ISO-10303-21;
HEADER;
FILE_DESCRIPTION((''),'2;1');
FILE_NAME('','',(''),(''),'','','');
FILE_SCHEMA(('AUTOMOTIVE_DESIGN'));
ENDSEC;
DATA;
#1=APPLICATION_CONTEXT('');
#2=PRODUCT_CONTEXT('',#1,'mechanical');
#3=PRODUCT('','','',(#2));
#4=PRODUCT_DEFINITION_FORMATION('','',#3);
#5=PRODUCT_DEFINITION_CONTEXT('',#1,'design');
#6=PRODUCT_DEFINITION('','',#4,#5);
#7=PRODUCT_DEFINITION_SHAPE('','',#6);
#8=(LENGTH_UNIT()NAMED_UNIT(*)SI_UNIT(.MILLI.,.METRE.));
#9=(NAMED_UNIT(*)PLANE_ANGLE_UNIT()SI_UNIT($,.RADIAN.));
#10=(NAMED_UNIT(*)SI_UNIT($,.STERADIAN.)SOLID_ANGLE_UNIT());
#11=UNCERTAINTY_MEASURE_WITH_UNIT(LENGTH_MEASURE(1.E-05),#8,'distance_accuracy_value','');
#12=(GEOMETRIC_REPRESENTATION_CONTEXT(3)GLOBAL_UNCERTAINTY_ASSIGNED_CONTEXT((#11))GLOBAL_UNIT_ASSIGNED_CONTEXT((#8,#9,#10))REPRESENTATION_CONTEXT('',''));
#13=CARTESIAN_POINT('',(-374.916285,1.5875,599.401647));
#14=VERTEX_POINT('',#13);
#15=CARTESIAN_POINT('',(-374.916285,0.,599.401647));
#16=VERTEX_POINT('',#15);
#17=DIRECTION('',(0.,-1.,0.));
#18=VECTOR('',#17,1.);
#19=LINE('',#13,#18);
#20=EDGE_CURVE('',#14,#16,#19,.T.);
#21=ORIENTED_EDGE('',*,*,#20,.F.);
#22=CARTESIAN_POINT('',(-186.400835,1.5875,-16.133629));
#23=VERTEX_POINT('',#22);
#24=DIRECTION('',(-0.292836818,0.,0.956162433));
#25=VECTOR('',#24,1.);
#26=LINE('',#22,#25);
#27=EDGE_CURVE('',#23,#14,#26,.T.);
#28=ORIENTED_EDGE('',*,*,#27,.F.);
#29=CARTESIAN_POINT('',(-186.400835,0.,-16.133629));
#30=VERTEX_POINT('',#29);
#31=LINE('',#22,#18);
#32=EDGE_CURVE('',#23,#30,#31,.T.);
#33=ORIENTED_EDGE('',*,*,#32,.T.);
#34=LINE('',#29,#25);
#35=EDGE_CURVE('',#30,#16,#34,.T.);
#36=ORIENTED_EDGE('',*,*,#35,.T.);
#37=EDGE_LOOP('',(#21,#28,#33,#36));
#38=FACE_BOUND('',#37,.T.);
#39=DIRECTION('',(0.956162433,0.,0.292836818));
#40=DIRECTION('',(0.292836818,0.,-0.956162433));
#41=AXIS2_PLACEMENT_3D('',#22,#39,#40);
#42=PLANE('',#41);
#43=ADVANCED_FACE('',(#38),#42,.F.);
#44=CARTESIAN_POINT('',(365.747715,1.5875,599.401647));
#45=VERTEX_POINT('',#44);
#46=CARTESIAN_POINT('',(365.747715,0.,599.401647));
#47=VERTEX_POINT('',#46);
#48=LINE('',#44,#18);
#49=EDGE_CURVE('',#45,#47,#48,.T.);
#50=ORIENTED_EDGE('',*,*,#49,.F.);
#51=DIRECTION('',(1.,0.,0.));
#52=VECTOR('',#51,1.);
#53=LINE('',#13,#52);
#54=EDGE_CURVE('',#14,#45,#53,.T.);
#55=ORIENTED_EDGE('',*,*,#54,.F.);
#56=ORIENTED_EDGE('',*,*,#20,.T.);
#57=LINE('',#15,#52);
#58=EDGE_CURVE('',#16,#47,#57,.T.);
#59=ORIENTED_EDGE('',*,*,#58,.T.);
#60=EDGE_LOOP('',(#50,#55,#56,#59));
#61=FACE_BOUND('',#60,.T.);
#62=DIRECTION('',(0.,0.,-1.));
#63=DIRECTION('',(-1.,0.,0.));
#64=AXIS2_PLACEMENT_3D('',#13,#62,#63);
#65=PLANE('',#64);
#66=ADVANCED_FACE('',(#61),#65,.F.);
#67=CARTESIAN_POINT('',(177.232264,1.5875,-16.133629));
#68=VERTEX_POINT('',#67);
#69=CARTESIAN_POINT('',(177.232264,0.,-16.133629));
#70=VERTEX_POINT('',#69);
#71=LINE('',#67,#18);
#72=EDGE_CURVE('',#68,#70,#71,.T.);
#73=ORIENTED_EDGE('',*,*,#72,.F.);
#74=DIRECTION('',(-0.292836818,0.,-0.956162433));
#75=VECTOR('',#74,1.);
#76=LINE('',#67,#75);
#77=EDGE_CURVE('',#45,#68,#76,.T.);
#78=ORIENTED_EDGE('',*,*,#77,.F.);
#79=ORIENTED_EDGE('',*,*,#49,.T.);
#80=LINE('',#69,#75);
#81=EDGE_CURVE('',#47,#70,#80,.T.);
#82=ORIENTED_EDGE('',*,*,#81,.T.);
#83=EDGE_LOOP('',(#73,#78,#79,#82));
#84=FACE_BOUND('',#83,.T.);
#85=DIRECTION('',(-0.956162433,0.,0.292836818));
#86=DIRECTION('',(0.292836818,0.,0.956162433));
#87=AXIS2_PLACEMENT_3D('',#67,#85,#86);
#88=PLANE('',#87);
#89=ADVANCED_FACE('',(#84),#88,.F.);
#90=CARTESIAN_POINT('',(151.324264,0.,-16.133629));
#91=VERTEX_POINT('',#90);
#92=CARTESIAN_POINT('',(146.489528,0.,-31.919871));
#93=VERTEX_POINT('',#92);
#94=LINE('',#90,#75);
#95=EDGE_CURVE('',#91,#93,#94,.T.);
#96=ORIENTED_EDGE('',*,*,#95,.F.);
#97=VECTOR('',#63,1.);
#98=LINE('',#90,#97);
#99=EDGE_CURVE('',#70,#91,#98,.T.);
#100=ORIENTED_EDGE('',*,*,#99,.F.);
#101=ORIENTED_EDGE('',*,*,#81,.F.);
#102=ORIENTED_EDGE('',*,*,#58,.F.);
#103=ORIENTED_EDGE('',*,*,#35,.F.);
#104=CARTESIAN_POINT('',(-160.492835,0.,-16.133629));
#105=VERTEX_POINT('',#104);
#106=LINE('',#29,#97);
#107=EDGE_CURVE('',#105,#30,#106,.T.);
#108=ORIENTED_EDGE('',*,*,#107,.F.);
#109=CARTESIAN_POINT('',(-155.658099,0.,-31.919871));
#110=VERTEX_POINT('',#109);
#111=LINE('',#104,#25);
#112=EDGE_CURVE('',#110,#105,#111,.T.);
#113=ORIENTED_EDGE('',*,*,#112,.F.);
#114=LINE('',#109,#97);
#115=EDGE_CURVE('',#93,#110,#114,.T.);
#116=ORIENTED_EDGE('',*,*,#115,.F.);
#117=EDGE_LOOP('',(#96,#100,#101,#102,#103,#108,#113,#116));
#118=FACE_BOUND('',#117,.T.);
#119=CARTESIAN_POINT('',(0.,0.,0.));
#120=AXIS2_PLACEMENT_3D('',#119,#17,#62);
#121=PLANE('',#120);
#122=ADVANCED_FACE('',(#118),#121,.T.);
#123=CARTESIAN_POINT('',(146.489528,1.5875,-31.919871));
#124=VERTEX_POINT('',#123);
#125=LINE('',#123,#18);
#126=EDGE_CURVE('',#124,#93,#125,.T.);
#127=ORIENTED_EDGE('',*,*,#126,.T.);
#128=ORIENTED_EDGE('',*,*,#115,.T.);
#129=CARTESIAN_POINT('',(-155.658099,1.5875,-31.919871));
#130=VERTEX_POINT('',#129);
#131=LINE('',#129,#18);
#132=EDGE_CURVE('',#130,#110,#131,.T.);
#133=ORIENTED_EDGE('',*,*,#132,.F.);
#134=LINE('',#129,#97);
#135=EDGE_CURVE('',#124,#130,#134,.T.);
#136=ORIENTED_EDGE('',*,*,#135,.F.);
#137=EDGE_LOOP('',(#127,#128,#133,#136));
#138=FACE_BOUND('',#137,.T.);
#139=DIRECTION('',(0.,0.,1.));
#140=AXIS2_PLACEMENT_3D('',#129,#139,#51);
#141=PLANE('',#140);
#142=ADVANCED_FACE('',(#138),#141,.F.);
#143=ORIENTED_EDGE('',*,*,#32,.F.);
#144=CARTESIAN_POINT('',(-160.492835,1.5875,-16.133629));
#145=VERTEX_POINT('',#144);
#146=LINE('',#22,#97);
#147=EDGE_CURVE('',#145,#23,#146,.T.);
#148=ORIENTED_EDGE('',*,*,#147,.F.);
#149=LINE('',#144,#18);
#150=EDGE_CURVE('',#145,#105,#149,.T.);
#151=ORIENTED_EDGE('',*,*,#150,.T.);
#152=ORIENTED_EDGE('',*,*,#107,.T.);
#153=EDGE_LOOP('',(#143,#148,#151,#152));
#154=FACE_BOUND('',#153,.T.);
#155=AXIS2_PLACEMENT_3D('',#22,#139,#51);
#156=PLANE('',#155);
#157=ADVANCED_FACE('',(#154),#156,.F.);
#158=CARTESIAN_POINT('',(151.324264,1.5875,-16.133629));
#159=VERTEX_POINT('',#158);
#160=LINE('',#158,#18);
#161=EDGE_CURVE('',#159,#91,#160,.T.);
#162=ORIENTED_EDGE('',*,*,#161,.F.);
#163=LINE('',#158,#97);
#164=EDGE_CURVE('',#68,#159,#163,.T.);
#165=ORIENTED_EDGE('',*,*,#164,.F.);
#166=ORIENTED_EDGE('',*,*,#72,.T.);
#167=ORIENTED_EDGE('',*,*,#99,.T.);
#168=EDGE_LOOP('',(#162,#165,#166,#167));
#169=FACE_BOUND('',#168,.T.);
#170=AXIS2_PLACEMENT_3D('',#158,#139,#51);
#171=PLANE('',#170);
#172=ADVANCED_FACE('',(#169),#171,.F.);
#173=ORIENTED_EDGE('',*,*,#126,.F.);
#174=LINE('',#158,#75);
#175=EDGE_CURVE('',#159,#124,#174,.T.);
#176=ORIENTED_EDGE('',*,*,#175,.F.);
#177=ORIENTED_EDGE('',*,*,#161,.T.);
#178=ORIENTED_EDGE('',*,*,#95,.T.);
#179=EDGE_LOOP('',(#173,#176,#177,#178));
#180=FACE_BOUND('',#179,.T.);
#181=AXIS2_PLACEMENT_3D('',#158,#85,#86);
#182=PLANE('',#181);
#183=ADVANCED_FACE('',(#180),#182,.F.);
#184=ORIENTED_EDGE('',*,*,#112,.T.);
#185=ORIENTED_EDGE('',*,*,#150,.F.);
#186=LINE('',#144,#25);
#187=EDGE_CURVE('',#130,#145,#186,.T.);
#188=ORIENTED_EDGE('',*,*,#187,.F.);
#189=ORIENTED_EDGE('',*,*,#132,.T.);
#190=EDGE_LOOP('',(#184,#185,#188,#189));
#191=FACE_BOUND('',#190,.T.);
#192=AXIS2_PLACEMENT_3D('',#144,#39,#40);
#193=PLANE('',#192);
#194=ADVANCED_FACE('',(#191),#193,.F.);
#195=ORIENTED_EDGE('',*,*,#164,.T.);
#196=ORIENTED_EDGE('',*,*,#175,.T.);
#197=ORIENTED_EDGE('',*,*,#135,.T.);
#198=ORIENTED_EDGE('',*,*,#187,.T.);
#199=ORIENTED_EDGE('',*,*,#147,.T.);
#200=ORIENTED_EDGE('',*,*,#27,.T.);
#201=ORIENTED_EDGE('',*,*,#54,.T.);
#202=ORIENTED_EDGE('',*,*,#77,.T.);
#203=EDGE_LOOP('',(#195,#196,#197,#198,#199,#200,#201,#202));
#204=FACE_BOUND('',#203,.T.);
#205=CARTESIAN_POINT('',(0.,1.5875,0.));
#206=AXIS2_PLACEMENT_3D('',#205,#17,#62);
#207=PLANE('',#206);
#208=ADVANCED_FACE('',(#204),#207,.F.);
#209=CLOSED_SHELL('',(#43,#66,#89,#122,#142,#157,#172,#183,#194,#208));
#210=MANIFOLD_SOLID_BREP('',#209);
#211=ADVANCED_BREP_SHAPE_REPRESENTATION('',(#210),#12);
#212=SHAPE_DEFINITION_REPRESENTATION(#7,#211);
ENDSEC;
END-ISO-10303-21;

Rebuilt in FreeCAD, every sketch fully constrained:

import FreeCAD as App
import Part
import Sketcher

V = App.Vector
Q = App.Units.Quantity

doc = App.newDocument("Part")
body = doc.addObject("PartDesign::Body", "Body")

sketch1 = body.newObject("Sketcher::SketchObject", "Sketch")
sketch1.AttachmentSupport = (doc.getObject("XZ_Plane"), [""])
sketch1.MapMode = "FlatFace"
sketch1.addGeometry(Part.LineSegment(V(-186.400835, -16.133629, 0), V(-374.916285, 599.401647, 0)), False)
sketch1.addGeometry(Part.LineSegment(V(-374.916285, 599.401647, 0), V(365.747715, 599.401647, 0)), False)
sketch1.addGeometry(Part.LineSegment(V(365.747715, 599.401647, 0), V(177.232264, -16.133629, 0)), False)
sketch1.addGeometry(Part.LineSegment(V(177.232264, -16.133629, 0), V(151.324264, -16.133629, 0)), False)
sketch1.addGeometry(Part.LineSegment(V(151.324264, -16.133629, 0), V(146.489528, -31.919871, 0)), False)
sketch1.addGeometry(Part.LineSegment(V(146.489528, -31.919871, 0), V(-155.658099, -31.919871, 0)), False)
sketch1.addGeometry(Part.LineSegment(V(-155.658099, -31.919871, 0), V(-160.492835, -16.133629, 0)), False)
sketch1.addGeometry(Part.LineSegment(V(-160.492835, -16.133629, 0), V(-186.400835, -16.133629, 0)), False)
sketch1.addConstraint(Sketcher.Constraint("Coincident", 0, 2, 1, 1))
sketch1.addConstraint(Sketcher.Constraint("Coincident", 1, 2, 2, 1))
sketch1.addConstraint(Sketcher.Constraint("Coincident", 2, 2, 3, 1))
sketch1.addConstraint(Sketcher.Constraint("Coincident", 3, 2, 4, 1))
sketch1.addConstraint(Sketcher.Constraint("Coincident", 4, 2, 5, 1))
sketch1.addConstraint(Sketcher.Constraint("Coincident", 5, 2, 6, 1))
sketch1.addConstraint(Sketcher.Constraint("Coincident", 6, 2, 7, 1))
sketch1.addConstraint(Sketcher.Constraint("Coincident", 7, 2, 0, 1))
sketch1.addConstraint(Sketcher.Constraint("Horizontal", 1))
sketch1.addConstraint(Sketcher.Constraint("Horizontal", 3))
sketch1.addConstraint(Sketcher.Constraint("Horizontal", 5))
sketch1.addConstraint(Sketcher.Constraint("Horizontal", 7))
sketch1.addConstraint(Sketcher.Constraint("Parallel", 2, 4))
sketch1.addConstraint(Sketcher.Constraint("Parallel", 0, 6))
sketch1.addConstraint(Sketcher.Constraint("Horizontal", 3, 2, 6, 2))
sketch1.addConstraint(Sketcher.Constraint("Equal", 3, 7))
sketch1.addConstraint(Sketcher.Constraint("Equal", 0, 2))
sketch1.addConstraint(Sketcher.Constraint("DistanceX", 1, 1, 1, 2, Q("29.16 in")))
sketch1.addConstraint(Sketcher.Constraint("DistanceX", 3, 2, 3, 1, Q("1.02 in")))
sketch1.addConstraint(Sketcher.Constraint("Distance", 4, Q("0.65 in")))
sketch1.addConstraint(Sketcher.Constraint("DistanceX", 5, 2, -1, 1, Q("155.658099 mm")))
sketch1.addConstraint(Sketcher.Constraint("DistanceX", 6, 2, 3, 2, Q("311.8171 mm")))
sketch1.addConstraint(Sketcher.Constraint("Distance", 0, Q("643.755972 mm")))
sketch1.addConstraint(Sketcher.Constraint("DistanceY", 2, 2, -1, 1, Q("16.133629 mm")))
pad1 = body.newObject("PartDesign::Pad", "Pad")
pad1.Profile = sketch1
pad1.Length = Q("0.0625 in")
pad1.Reversed = True

doc.recompute()
